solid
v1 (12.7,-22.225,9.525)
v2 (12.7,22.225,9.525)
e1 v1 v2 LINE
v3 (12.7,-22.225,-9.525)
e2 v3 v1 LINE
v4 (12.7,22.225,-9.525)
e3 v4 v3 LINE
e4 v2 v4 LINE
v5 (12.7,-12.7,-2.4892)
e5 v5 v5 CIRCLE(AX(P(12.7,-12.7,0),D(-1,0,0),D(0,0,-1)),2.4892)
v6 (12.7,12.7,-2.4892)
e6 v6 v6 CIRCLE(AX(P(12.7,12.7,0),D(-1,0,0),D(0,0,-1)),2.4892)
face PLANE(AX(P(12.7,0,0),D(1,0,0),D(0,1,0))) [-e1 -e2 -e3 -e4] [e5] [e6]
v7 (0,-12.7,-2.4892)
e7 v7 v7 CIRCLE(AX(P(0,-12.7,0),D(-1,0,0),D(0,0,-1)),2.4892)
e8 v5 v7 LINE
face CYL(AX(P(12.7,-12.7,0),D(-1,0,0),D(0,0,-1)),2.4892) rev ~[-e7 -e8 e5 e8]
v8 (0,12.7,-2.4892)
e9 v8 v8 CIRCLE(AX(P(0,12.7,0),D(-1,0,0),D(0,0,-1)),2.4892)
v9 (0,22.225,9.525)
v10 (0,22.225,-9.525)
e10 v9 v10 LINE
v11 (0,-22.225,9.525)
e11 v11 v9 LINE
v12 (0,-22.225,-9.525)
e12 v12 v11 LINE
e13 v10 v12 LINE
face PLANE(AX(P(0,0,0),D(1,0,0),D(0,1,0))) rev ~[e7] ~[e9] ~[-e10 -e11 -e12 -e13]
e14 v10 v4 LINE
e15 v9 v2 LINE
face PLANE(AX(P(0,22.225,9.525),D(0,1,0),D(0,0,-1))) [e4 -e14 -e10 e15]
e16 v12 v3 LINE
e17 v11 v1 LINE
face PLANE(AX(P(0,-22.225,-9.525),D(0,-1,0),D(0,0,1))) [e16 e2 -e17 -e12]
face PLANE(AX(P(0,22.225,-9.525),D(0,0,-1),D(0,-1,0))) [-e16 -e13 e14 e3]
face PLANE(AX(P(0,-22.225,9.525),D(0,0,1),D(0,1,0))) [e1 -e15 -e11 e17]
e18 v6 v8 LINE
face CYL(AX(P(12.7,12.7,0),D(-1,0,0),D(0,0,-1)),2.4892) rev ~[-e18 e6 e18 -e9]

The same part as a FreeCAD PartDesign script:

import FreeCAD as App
import Part
import Sketcher
Q = App.Units.Quantity

doc = App.newDocument("Part")
params = doc.addObject("Spreadsheet::Sheet", "Params")
for row, (alias, value) in enumerate([
    ("sketch1_width", "1.75 in"),
    ("sketch1_height", "0.75 in"),
    ("pad1_length", "0.5 in"),
    ("sketch2_diameter", "0.196 in"),
    ("hole_diameter", "0.196 in"),
], start=1):
    params.set(f"A{row}", alias)
    params.set(f"B{row}", "=" + value)
    params.setAlias(f"B{row}", alias)

body = doc.addObject("PartDesign::Body", "Body")

sketch1 = body.newObject("Sketcher::SketchObject", "Sketch")
sketch1.AttachmentSupport = (doc.getObject("YZ_Plane"), [""])
sketch1.MapMode = "FlatFace"
sketch1.addGeometry([
    Part.LineSegment(App.Vector(22, 10, 0), App.Vector(-22, 10, 0)),
    Part.LineSegment(App.Vector(-22, 10, 0), App.Vector(-22, -10, 0)),
    Part.LineSegment(App.Vector(-22, -10, 0), App.Vector(22, -10, 0)),
    Part.LineSegment(App.Vector(22, -10, 0), App.Vector(22, 10, 0)),
], False)
sketch1.addConstraint([
    Sketcher.Constraint("Coincident", 0, 2, 1, 1),
    Sketcher.Constraint("Coincident", 1, 2, 2, 1),
    Sketcher.Constraint("Coincident", 2, 2, 3, 1),
    Sketcher.Constraint("Coincident", 3, 2, 0, 1),
    Sketcher.Constraint("Horizontal", 0),
    Sketcher.Constraint("Vertical", 1),
    Sketcher.Constraint("Horizontal", 2),
    Sketcher.Constraint("Vertical", 3),
    Sketcher.Constraint("Symmetric", 0, 2, 2, 2, -1, 1),
    Sketcher.Constraint("DistanceX", 0, 2, 0, 1, Q("1.75 in")),
    Sketcher.Constraint("DistanceY", 1, 2, 1, 1, Q("0.75 in")),
])
sketch1.setExpression("Constraints[9]", "Params.sketch1_width")
sketch1.setExpression("Constraints[10]", "Params.sketch1_height")
pad1 = body.newObject("PartDesign::Pad", "Pad")
pad1.Profile = sketch1
pad1.setExpression("Length", "Params.pad1_length")

sketch2 = body.newObject("Sketcher::SketchObject", "Sketch001")
sketch2.AttachmentSupport = (doc.getObject("YZ_Plane"), [""])
sketch2.MapMode = "FlatFace"
sketch2.AttachmentOffset = App.Placement(App.Vector(0, 0, 0.5 * 25.4), App.Rotation())
sketch2.addGeometry([
    Part.Circle(App.Vector(12.7, 0, 0), App.Vector(0, 0, 1), 2.5),
    Part.Circle(App.Vector(-12.7, 0, 0), App.Vector(0, 0, 1), 2.5),
], False)
sketch2.addConstraint([
    Sketcher.Constraint("Equal", 0, 1),
    Sketcher.Constraint("Symmetric", 0, 3, 1, 3, -1, 1),
    Sketcher.Constraint("PointOnObject", 0, 3, -1),
    Sketcher.Constraint("Diameter", 0, Q("0.196 in")),
    Sketcher.Constraint("DistanceX", 1, 3, 0, 3, Q("1 in")),
])
sketch2.setExpression("Constraints[3]", "Params.sketch2_diameter")
doc.recompute()
hole = body.newObject("PartDesign::Hole", "Hole")
hole.Profile = sketch2
hole.ThreadType = "None"
hole.setExpression("Diameter", "Params.hole_diameter")
hole.DepthType = "ThroughAll"

doc.recompute()
